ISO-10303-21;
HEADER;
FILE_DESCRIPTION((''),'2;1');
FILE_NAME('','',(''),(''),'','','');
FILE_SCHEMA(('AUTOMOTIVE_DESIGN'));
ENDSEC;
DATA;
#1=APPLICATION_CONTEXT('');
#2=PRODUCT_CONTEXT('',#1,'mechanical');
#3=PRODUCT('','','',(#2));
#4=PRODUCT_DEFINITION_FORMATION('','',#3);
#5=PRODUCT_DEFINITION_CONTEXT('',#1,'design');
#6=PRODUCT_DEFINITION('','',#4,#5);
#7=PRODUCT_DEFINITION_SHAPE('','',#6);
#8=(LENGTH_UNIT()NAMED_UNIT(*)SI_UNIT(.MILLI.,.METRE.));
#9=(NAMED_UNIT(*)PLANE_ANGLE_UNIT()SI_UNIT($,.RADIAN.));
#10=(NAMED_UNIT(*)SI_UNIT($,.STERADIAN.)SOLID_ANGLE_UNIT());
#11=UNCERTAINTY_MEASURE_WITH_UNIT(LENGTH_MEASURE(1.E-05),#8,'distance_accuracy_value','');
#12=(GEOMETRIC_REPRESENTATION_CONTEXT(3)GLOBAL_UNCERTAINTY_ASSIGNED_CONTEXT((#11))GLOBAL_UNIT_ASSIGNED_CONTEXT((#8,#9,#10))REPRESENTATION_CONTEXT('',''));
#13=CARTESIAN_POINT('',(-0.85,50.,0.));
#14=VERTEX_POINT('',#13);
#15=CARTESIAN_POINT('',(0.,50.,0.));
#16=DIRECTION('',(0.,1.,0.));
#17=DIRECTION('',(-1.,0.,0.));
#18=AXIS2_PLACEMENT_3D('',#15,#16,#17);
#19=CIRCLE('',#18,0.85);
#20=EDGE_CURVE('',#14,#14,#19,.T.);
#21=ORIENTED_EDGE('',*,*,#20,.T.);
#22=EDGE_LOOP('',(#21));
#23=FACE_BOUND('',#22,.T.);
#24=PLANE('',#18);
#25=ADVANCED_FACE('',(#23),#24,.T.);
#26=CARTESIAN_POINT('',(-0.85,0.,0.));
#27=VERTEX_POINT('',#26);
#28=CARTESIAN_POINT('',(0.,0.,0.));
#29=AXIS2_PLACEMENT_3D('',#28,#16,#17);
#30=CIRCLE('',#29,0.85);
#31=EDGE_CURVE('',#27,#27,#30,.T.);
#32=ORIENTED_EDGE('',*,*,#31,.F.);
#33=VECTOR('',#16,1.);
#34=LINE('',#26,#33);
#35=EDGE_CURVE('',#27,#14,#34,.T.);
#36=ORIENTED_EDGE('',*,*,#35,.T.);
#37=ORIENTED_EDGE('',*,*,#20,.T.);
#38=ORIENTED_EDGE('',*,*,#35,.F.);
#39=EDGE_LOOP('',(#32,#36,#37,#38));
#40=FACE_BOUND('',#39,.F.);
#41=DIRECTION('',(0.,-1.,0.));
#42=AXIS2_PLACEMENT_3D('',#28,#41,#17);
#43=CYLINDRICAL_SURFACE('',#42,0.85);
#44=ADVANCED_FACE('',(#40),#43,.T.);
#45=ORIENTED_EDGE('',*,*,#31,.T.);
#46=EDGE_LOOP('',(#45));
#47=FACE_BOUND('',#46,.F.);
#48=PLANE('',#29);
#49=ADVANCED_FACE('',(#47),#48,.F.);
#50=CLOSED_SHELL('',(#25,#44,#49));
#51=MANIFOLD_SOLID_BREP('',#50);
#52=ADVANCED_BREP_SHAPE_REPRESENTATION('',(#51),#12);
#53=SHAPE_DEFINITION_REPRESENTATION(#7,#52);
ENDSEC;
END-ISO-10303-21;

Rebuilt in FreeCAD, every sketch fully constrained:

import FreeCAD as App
import Part
import Sketcher
from FreeCAD import Vector
Q = App.Units.Quantity

doc = App.newDocument("Part")
params = doc.addObject("Spreadsheet::Sheet", "Params")
for row, (alias, value) in enumerate([
    ("sketch1_diameter", "1.7 mm"),
    ("pad1_length", "50 mm"),
], start=1):
    params.set(f"A{row}", alias)
    params.set(f"B{row}", "=" + value)
    params.setAlias(f"B{row}", alias)

body = doc.addObject("PartDesign::Body", "Body")

# Sketch on XZ plane
sketch1 = body.newObject("Sketcher::SketchObject", "Sketch")
sketch1.AttachmentSupport = (doc.getObject("XZ_Plane"), [""])
sketch1.MapMode = "FlatFace"
sketch1.addGeometry(Part.Circle(Vector(0, 0, 0), Vector(0, 0, 1), 0.85), False)
sketch1.addConstraint(Sketcher.Constraint("Coincident", 0, 3, -1, 1))
sketch1.addConstraint(Sketcher.Constraint("Diameter", 0, Q("1.7 mm")))
sketch1.setExpression("Constraints[1]", "Params.sketch1_diameter")
pad1 = body.newObject("PartDesign::Pad", "Pad")
pad1.Profile = sketch1
pad1.setExpression("Length", "Params.pad1_length")
pad1.Reversed = True

doc.recompute()
